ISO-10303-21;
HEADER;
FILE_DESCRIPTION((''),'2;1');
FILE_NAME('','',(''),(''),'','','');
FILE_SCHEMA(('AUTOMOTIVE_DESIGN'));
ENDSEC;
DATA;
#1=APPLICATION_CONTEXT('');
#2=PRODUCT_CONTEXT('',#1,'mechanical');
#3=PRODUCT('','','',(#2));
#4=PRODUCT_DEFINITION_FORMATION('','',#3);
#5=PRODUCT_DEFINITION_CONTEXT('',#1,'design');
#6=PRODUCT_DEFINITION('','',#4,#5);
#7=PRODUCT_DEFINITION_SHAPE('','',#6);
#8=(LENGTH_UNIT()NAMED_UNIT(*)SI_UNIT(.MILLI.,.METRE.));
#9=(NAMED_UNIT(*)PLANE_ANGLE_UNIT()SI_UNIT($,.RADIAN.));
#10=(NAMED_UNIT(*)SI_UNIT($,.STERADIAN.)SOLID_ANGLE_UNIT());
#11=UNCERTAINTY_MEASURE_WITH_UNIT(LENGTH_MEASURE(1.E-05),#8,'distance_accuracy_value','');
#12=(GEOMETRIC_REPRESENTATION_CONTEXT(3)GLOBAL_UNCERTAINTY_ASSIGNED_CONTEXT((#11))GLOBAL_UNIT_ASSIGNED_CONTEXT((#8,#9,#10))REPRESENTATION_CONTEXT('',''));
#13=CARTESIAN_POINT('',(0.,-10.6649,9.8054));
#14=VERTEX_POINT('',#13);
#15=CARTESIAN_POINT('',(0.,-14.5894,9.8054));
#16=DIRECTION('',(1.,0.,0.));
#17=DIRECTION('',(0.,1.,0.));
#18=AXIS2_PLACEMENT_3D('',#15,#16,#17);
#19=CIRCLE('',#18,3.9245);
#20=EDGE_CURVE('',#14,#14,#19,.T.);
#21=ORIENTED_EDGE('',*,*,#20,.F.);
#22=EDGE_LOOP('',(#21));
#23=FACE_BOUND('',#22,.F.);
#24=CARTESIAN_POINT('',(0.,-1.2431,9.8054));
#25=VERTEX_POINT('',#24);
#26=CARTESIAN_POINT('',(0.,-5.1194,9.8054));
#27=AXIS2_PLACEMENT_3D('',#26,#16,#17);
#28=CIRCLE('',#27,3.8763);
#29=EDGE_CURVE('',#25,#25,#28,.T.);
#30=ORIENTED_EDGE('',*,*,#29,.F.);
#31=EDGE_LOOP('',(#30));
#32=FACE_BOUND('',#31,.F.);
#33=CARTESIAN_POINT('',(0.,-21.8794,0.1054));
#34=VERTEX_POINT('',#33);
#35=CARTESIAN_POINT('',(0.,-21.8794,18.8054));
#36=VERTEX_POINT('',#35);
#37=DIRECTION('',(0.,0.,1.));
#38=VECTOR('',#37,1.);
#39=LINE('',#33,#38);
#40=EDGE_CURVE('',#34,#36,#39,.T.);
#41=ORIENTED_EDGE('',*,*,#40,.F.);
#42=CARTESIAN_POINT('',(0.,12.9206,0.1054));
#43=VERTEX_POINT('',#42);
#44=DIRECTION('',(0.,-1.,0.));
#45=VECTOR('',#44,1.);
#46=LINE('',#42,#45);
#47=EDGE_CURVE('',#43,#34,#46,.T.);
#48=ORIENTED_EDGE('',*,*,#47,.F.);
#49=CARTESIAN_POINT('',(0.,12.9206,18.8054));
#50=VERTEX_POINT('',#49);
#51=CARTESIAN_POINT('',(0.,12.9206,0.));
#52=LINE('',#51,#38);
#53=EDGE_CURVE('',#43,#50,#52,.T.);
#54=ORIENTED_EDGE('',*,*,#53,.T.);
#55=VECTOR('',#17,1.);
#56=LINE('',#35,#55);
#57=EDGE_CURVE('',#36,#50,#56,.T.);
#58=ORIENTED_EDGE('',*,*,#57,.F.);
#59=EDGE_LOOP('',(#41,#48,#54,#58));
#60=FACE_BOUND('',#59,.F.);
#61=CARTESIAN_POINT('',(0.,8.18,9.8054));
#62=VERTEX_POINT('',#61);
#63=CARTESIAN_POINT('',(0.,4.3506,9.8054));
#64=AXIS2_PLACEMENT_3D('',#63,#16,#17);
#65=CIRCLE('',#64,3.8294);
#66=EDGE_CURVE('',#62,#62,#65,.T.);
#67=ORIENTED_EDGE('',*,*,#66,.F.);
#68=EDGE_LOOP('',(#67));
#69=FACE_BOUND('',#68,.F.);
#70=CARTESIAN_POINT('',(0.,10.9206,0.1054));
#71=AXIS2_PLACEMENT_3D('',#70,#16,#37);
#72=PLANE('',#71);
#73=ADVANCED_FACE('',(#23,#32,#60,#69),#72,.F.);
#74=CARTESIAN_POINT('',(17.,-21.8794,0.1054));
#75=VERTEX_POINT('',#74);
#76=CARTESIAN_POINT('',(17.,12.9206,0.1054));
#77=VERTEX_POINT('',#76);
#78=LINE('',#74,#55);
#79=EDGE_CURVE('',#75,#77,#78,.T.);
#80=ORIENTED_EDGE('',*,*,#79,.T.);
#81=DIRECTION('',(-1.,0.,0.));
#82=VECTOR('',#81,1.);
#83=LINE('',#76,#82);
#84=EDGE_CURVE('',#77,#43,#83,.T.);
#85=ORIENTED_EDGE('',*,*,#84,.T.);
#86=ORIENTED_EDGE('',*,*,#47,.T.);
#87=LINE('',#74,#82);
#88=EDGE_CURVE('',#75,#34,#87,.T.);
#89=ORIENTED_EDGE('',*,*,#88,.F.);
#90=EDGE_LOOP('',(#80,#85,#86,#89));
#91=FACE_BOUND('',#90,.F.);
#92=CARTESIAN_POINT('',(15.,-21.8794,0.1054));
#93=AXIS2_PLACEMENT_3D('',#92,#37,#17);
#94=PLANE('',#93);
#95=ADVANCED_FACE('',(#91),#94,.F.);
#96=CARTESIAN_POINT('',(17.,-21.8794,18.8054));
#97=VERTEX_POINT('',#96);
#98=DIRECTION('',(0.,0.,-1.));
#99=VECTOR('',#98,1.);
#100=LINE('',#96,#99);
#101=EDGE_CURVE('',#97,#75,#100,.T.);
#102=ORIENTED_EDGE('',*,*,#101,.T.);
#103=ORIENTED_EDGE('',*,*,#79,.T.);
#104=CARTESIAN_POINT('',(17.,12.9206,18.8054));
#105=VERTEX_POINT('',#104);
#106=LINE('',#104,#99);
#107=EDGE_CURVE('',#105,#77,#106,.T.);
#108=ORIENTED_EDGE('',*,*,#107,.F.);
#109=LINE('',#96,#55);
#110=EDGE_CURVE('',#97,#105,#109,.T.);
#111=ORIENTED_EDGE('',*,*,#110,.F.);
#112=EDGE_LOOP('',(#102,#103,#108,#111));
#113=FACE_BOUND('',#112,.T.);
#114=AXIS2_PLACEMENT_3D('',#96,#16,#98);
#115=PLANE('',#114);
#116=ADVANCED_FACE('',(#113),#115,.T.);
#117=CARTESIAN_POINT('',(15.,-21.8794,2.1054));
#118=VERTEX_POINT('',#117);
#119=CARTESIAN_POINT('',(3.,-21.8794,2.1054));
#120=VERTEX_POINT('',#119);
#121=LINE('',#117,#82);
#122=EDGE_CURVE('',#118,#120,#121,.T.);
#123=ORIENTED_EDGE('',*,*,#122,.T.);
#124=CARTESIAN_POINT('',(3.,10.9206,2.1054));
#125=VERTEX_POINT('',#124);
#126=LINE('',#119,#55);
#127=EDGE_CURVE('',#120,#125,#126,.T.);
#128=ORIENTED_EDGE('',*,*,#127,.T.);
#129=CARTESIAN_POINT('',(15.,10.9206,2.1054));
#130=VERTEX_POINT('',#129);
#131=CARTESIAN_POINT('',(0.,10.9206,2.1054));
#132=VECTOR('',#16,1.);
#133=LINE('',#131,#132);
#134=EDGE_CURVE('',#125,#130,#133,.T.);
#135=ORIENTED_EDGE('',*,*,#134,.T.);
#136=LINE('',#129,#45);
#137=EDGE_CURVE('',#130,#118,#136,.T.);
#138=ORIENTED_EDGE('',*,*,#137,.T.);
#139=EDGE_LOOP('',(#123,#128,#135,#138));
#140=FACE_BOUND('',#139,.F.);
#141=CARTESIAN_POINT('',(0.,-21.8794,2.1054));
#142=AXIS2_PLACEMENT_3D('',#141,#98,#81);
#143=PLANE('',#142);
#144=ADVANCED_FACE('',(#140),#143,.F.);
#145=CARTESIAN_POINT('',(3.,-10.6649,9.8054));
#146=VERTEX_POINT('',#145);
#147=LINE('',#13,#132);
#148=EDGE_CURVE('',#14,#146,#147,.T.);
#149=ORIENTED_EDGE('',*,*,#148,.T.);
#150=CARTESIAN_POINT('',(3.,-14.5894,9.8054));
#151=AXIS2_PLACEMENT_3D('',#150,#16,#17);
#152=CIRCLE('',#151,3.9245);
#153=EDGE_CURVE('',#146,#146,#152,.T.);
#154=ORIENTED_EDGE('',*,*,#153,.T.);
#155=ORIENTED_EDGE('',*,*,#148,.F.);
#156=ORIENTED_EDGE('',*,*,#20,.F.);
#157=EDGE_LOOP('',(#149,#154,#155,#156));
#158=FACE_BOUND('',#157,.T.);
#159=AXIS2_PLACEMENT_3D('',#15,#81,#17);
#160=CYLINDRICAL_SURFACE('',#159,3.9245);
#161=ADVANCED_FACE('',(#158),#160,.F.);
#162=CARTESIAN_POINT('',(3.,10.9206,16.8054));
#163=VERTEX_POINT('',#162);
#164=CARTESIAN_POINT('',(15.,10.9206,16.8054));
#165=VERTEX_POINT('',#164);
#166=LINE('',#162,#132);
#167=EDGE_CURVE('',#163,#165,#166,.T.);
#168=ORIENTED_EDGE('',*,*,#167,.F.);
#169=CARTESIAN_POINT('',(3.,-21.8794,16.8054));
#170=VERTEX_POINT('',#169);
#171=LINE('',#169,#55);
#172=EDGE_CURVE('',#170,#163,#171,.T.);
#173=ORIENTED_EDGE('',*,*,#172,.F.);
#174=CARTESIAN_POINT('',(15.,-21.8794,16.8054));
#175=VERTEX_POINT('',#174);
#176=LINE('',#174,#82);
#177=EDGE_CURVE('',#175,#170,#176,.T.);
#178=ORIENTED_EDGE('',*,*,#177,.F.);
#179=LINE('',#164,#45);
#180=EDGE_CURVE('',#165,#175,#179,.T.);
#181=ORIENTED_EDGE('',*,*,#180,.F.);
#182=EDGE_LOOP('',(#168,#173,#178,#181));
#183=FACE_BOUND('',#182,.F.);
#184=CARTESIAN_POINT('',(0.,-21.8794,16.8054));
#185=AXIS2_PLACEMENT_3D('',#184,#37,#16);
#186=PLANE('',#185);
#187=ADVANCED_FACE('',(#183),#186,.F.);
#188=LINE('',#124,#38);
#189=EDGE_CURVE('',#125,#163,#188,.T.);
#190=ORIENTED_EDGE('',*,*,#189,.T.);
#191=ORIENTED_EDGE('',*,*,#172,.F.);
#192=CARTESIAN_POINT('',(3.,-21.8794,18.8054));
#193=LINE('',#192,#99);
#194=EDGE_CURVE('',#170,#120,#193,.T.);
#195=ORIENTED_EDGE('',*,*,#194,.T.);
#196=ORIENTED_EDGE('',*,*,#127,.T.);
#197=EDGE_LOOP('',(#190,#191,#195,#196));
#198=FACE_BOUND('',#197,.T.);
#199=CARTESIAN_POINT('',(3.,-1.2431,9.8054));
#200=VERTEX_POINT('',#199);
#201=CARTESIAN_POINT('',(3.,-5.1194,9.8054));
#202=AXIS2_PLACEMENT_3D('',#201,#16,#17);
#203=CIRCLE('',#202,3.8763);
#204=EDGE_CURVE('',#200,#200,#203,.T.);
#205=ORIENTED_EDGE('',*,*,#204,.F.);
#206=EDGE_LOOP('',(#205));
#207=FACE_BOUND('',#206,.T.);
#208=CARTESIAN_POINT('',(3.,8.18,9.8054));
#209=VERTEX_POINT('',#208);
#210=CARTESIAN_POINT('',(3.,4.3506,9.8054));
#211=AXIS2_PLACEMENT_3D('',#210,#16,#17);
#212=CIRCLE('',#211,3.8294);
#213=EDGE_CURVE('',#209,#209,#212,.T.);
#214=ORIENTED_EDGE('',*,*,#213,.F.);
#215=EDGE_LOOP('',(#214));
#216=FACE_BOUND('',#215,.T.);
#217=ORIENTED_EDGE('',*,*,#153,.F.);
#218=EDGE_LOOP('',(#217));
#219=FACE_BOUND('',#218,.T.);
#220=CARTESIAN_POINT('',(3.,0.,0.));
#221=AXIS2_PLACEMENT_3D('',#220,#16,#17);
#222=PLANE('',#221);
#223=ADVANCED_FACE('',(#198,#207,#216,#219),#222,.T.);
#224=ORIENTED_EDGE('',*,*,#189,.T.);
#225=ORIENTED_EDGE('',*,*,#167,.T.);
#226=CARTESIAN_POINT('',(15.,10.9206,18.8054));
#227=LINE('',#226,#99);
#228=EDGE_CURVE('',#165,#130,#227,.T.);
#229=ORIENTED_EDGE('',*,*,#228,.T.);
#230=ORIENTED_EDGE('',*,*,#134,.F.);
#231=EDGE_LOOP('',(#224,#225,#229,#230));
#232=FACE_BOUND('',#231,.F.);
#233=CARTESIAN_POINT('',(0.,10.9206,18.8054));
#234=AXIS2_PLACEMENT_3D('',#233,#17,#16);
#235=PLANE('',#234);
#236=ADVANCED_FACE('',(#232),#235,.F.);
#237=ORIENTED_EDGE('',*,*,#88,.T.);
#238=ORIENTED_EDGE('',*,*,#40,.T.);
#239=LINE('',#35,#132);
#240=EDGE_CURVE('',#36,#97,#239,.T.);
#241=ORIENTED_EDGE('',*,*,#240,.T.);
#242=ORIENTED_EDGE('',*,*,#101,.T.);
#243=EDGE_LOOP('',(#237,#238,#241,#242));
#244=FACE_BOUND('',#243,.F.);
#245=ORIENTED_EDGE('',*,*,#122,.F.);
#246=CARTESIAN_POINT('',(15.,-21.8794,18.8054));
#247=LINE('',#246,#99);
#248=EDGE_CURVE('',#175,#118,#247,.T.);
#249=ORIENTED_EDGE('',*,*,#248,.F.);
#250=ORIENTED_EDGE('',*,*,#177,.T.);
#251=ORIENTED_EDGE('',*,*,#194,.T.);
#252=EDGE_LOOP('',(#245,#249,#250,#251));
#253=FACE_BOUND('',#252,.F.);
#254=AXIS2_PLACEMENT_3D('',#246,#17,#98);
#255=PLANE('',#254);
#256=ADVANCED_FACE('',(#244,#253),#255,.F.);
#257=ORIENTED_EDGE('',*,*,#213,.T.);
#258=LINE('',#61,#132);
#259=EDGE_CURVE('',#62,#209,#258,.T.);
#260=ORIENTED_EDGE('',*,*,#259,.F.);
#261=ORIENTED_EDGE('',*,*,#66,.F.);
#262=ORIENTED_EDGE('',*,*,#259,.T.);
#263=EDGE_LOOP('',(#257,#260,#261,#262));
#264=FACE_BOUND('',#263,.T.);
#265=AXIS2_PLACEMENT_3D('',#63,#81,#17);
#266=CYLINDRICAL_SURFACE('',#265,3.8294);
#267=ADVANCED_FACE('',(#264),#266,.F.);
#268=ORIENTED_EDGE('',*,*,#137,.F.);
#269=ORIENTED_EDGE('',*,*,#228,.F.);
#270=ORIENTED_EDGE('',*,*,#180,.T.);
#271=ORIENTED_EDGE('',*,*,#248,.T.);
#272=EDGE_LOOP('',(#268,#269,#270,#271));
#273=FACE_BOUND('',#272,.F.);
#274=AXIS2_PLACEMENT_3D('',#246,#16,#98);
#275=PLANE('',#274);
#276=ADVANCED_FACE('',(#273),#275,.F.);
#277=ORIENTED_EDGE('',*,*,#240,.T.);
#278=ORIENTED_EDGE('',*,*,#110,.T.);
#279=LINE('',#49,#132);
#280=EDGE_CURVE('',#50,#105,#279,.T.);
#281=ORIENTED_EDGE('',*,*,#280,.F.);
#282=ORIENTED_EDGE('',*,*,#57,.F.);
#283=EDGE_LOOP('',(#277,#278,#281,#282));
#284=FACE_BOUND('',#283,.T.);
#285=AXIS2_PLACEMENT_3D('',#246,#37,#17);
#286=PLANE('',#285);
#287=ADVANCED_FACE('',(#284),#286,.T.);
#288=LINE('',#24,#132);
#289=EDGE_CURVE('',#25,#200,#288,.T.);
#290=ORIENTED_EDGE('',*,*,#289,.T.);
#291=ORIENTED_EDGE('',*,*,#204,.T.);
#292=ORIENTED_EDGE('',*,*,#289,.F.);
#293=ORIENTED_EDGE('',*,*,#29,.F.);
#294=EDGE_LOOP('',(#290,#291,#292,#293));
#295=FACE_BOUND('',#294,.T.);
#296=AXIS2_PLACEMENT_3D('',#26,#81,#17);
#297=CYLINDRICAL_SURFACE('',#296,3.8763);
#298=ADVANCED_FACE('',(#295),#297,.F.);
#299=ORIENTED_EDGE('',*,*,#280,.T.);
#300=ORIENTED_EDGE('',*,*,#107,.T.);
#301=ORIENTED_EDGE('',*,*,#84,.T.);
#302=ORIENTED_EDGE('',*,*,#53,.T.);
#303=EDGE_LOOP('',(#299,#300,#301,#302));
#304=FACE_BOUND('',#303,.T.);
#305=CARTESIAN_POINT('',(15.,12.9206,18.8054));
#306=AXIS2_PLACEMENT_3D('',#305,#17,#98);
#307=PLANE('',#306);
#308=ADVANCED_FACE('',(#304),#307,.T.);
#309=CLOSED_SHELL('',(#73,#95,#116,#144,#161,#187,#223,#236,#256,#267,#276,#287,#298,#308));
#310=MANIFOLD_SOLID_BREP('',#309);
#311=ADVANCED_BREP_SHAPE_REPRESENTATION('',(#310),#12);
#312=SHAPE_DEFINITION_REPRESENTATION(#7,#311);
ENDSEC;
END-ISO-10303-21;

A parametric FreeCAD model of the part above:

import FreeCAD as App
import Part
import Sketcher

V = App.Vector


def add_polygon(sketch, points):
    """Adds a closed chain of lines whose ends are joined by coincident constraints."""
    first, n = sketch.GeometryCount, len(points)
    for a, b in zip(points, points[1:] + points[:1]):
        sketch.addGeometry(Part.LineSegment(App.Vector(*a, 0), App.Vector(*b, 0)), False)
    for i in range(n):
        sketch.addConstraint(Sketcher.Constraint("Coincident", first + i, 2, first + (i + 1) % n, 1))

doc = App.newDocument("Part")
body = doc.addObject("PartDesign::Body", "Body")

# Sketch on YZ plane
sketch1 = body.newObject("Sketcher::SketchObject", "Sketch")
sketch1.AttachmentSupport = (doc.getObject("YZ_Plane"), [""])
sketch1.MapMode = "FlatFace"
add_polygon(sketch1, [(10.9, 2.1), (10.9, 18.8), (-21.9, 18.8), (-21.9, 2.1)])  # lines 0-3
sketch1.addGeometry(Part.Circle(V(-14.6, 9.8, 0), V(0, 0, 1), 3.9), False)  # 4
sketch1.addGeometry(Part.Circle(V(-5.1, 9.8, 0), V(0, 0, 1), 3.9), False)  # 5
sketch1.addGeometry(Part.Circle(V(4.4, 9.8, 0), V(0, 0, 1), 3.8), False)  # 6
sketch1.addConstraint([
    Sketcher.Constraint("Vertical", 0),
    Sketcher.Constraint("Horizontal", 1),
    Sketcher.Constraint("Vertical", 2),
    Sketcher.Constraint("Horizontal", 3),
    Sketcher.Constraint("Horizontal", 4, 3, 5, 3),
    Sketcher.Constraint("Horizontal", 5, 3, 6, 3),
    Sketcher.Constraint("DistanceX", 1, 2, 1, 1, 32.8),
    Sketcher.Constraint("DistanceY", 0, 1, 0, 2, 16.7),
    Sketcher.Constraint("DistanceY", 6, 3, 0, 2, 9.0),
    Sketcher.Constraint("Diameter", 4, 7.849),
    Sketcher.Constraint("Diameter", 5, 7.7526),
    Sketcher.Constraint("Diameter", 6, 7.6588),
    Sketcher.Constraint("DistanceX", 4, 3, 5, 3, 9.47),
    Sketcher.Constraint("DistanceX", 5, 3, 6, 3, 9.47),
    Sketcher.Constraint("DistanceX", 6, 3, 0, 2, 6.57),
    Sketcher.Constraint("DistanceX", 4, 3, -1, 1, 14.5894),
    Sketcher.Constraint("DistanceY", -1, 1, 4, 3, 9.8054),
])
pad1 = body.newObject("PartDesign::Pad", "Pad")
pad1.Profile = sketch1
pad1.Length = 3

# Sketch on XY plane
sketch2 = body.newObject("Sketcher::SketchObject", "Sketch001")
sketch2.AttachmentSupport = (doc.getObject("XY_Plane"), [""])
sketch2.MapMode = "FlatFace"
sketch2.AttachmentOffset = App.Placement(V(0, 0, 18.8054), App.Rotation())
add_polygon(sketch2, [(3, 11), (3, -22), (15, -22), (15, 11)])  # lines 0-3
sketch2.addConstraint([
    Sketcher.Constraint("Vertical", 0),
    Sketcher.Constraint("Horizontal", 1),
    Sketcher.Constraint("Vertical", 2),
    Sketcher.Constraint("Horizontal", 3),
    Sketcher.Constraint("DistanceX", 1, 1, 1, 2, 12.0),
    Sketcher.Constraint("DistanceY", 0, 2, 0, 1, 32.8),
    Sketcher.Constraint("DistanceX", -1, 1, 0, 2, 3.0),
    Sketcher.Constraint("DistanceY", 0, 2, -1, 1, 21.8794),
])
pad2 = body.newObject("PartDesign::Pad", "Pad001")
pad2.Profile = sketch2
pad2.Length = 2
pad2.Reversed = True

# Sketch on XY plane
sketch3 = body.newObject("Sketcher::SketchObject", "Sketch002")
sketch3.AttachmentSupport = (doc.getObject("XY_Plane"), [""])
sketch3.MapMode = "FlatFace"
sketch3.AttachmentOffset = App.Placement(V(0, 0, 2.1054), App.Rotation())
add_polygon(sketch3, [(0, -22), (0, 11), (15, 11), (15, -22)])  # lines 0-3
sketch3.addConstraint([
    Sketcher.Constraint("Vertical", 0),
    Sketcher.Constraint("Horizontal", 1),
    Sketcher.Constraint("Vertical", 2),
    Sketcher.Constraint("Horizontal", 3),
    Sketcher.Constraint("PointOnObject", 0, 2, -2),
    Sketcher.Constraint("DistanceX", 1, 1, 1, 2, 15.0),
    Sketcher.Constraint("DistanceY", 0, 1, 0, 2, 32.8),
    Sketcher.Constraint("DistanceY", -1, 1, 0, 2, 10.9206),
])
pad3 = body.newObject("PartDesign::Pad", "Pad002")
pad3.Profile = sketch3
pad3.Length = 2
pad3.Reversed = True

# Sketch on XZ plane
sketch4 = body.newObject("Sketcher::SketchObject", "Sketch003")
sketch4.AttachmentSupport = (doc.getObject("XZ_Plane"), [""])
sketch4.MapMode = "FlatFace"
sketch4.AttachmentOffset = App.Placement(V(0, 0, -10.9206), App.Rotation())
add_polygon(sketch4, [(0, 0), (0, 19), (15, 19), (15, 0)])  # lines 0-3
sketch4.addConstraint([
    Sketcher.Constraint("Vertical", 0),
    Sketcher.Constraint("Horizontal", 1),
    Sketcher.Constraint("Vertical", 2),
    Sketcher.Constraint("Horizontal", 3),
    Sketcher.Constraint("PointOnObject", 0, 2, -2),
    Sketcher.Constraint("DistanceX", 1, 1, 1, 2, 15.0),
    Sketcher.Constraint("DistanceY", 0, 1, 0, 2, 18.7),
    Sketcher.Constraint("DistanceY", -1, 1, 0, 2, 18.8054),
])
pad4 = body.newObject("PartDesign::Pad", "Pad003")
pad4.Profile = sketch4
pad4.Length = 2
pad4.Reversed = True

# Sketch on YZ plane
sketch5 = body.newObject("Sketcher::SketchObject", "Sketch004")
sketch5.AttachmentSupport = (doc.getObject("YZ_Plane"), [""])
sketch5.MapMode = "FlatFace"
sketch5.AttachmentOffset = App.Placement(V(0, 0, 15), App.Rotation())
add_polygon(sketch5, [(13, 0), (13, 19), (-22, 19), (-22, 0)])  # lines 0-3
sketch5.addConstraint([
    Sketcher.Constraint("Vertical", 0),
    Sketcher.Constraint("Horizontal", 1),
    Sketcher.Constraint("Vertical", 2),
    Sketcher.Constraint("Horizontal", 3),
    Sketcher.Constraint("DistanceX", 1, 2, 1, 1, 34.8),
    Sketcher.Constraint("DistanceY", 0, 1, 0, 2, 18.7),
    Sketcher.Constraint("DistanceX", -1, 1, 0, 2, 12.9206),
    Sketcher.Constraint("DistanceY", -1, 1, 0, 2, 18.8054),
])
pad5 = body.newObject("PartDesign::Pad", "Pad004")
pad5.Profile = sketch5
pad5.Length = 2

doc.recompute()
